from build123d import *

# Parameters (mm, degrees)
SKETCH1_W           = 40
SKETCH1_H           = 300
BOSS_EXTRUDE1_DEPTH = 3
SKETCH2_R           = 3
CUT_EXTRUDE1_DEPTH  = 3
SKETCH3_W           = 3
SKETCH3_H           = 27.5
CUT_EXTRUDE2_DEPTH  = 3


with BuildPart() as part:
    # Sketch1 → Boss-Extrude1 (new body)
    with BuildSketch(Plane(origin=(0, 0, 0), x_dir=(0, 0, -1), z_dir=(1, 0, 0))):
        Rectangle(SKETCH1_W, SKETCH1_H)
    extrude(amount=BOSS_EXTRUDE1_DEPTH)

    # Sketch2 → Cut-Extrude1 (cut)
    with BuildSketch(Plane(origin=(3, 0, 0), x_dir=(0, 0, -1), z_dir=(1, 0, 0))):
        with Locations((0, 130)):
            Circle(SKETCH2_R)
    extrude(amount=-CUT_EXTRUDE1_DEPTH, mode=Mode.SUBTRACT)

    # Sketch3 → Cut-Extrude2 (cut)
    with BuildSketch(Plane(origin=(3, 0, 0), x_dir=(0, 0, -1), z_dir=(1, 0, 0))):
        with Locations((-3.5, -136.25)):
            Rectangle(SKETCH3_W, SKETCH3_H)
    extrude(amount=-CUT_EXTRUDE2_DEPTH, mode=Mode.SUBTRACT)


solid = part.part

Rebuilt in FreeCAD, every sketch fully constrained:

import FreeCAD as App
import Part
import Sketcher
Q = App.Units.Quantity

doc = App.newDocument("Part")
body = doc.addObject("PartDesign::Body", "Body")

# Sketch on YZ plane
sketch1 = body.newObject("Sketcher::SketchObject", "Sketch")
sketch1.AttachmentSupport = (doc.getObject("YZ_Plane"), [""])
sketch1.MapMode = "FlatFace"
sketch1.addGeometry([
    Part.LineSegment(App.Vector(150, 20, 0), App.Vector(-150, 20, 0)),
    Part.LineSegment(App.Vector(-150, 20, 0), App.Vector(-150, -20, 0)),
    Part.LineSegment(App.Vector(-150, -20, 0), App.Vector(150, -20, 0)),
    Part.LineSegment(App.Vector(150, -20, 0), App.Vector(150, 20, 0)),
], False)
sketch1.addConstraint([
    Sketcher.Constraint("Coincident", 0, 2, 1, 1),
    Sketcher.Constraint("Coincident", 1, 2, 2, 1),
    Sketcher.Constraint("Coincident", 2, 2, 3, 1),
    Sketcher.Constraint("Coincident", 3, 2, 0, 1),
    Sketcher.Constraint("Horizontal", 0),
    Sketcher.Constraint("Vertical", 1),
    Sketcher.Constraint("Horizontal", 2),
    Sketcher.Constraint("Vertical", 3),
    Sketcher.Constraint("Symmetric", 0, 2, 2, 2, -1, 1),
    Sketcher.Constraint("DistanceX", 0, 2, 0, 1, Q("300 mm")),
    Sketcher.Constraint("DistanceY", 1, 2, 1, 1, Q("40 mm")),
])
pad1 = body.newObject("PartDesign::Pad", "Pad")
pad1.Profile = sketch1
pad1.Length = 3

# Sketch on YZ plane
sketch2 = body.newObject("Sketcher::SketchObject", "Sketch001")
sketch2.AttachmentSupport = (doc.getObject("YZ_Plane"), [""])
sketch2.MapMode = "FlatFace"
sketch2.AttachmentOffset = App.Placement(App.Vector(0, 0, 3), App.Rotation())
sketch2.addGeometry(Part.Circle(App.Vector(130, 0, 0), App.Vector(0, 0, 1), 3), False)
sketch2.addConstraint([
    Sketcher.Constraint("PointOnObject", 0, 3, -1),
    Sketcher.Constraint("Diameter", 0, Q("6 mm")),
    Sketcher.Constraint("DistanceX", -1, 1, 0, 3, Q("130 mm")),
])
pocket1 = body.newObject("PartDesign::Pocket", "Pocket")
pocket1.Profile = sketch2
pocket1.Length = 3

# Sketch on YZ plane
sketch3 = body.newObject("Sketcher::SketchObject", "Sketch002")
sketch3.AttachmentSupport = (doc.getObject("YZ_Plane"), [""])
sketch3.MapMode = "FlatFace"
sketch3.AttachmentOffset = App.Placement(App.Vector(0, 0, 3), App.Rotation())
sketch3.addGeometry([
    Part.LineSegment(App.Vector(-122.5, 5, 0), App.Vector(-150, 5, 0)),
    Part.LineSegment(App.Vector(-150, 5, 0), App.Vector(-150, 2, 0)),
    Part.LineSegment(App.Vector(-150, 2, 0), App.Vector(-122.5, 2, 0)),
    Part.LineSegment(App.Vector(-122.5, 2, 0), App.Vector(-122.5, 5, 0)),
], False)
sketch3.addConstraint([
    Sketcher.Constraint("Coincident", 0, 2, 1, 1),
    Sketcher.Constraint("Coincident", 1, 2, 2, 1),
    Sketcher.Constraint("Coincident", 2, 2, 3, 1),
    Sketcher.Constraint("Coincident", 3, 2, 0, 1),
    Sketcher.Constraint("Horizontal", 0),
    Sketcher.Constraint("Vertical", 1),
    Sketcher.Constraint("Horizontal", 2),
    Sketcher.Constraint("Vertical", 3),
    Sketcher.Constraint("DistanceY", 1, 2, 1, 1, Q("3 mm")),
    Sketcher.Constraint("DistanceX", 0, 2, 0, 1, Q("27.5 mm")),
    Sketcher.Constraint("DistanceX", 0, 2, -1, 1, Q("150 mm")),
    Sketcher.Constraint("DistanceY", -1, 1, 0, 2, Q("5 mm")),
])
pocket2 = body.newObject("PartDesign::Pocket", "Pocket001")
pocket2.Profile = sketch3
pocket2.Length = 3

doc.recompute()
